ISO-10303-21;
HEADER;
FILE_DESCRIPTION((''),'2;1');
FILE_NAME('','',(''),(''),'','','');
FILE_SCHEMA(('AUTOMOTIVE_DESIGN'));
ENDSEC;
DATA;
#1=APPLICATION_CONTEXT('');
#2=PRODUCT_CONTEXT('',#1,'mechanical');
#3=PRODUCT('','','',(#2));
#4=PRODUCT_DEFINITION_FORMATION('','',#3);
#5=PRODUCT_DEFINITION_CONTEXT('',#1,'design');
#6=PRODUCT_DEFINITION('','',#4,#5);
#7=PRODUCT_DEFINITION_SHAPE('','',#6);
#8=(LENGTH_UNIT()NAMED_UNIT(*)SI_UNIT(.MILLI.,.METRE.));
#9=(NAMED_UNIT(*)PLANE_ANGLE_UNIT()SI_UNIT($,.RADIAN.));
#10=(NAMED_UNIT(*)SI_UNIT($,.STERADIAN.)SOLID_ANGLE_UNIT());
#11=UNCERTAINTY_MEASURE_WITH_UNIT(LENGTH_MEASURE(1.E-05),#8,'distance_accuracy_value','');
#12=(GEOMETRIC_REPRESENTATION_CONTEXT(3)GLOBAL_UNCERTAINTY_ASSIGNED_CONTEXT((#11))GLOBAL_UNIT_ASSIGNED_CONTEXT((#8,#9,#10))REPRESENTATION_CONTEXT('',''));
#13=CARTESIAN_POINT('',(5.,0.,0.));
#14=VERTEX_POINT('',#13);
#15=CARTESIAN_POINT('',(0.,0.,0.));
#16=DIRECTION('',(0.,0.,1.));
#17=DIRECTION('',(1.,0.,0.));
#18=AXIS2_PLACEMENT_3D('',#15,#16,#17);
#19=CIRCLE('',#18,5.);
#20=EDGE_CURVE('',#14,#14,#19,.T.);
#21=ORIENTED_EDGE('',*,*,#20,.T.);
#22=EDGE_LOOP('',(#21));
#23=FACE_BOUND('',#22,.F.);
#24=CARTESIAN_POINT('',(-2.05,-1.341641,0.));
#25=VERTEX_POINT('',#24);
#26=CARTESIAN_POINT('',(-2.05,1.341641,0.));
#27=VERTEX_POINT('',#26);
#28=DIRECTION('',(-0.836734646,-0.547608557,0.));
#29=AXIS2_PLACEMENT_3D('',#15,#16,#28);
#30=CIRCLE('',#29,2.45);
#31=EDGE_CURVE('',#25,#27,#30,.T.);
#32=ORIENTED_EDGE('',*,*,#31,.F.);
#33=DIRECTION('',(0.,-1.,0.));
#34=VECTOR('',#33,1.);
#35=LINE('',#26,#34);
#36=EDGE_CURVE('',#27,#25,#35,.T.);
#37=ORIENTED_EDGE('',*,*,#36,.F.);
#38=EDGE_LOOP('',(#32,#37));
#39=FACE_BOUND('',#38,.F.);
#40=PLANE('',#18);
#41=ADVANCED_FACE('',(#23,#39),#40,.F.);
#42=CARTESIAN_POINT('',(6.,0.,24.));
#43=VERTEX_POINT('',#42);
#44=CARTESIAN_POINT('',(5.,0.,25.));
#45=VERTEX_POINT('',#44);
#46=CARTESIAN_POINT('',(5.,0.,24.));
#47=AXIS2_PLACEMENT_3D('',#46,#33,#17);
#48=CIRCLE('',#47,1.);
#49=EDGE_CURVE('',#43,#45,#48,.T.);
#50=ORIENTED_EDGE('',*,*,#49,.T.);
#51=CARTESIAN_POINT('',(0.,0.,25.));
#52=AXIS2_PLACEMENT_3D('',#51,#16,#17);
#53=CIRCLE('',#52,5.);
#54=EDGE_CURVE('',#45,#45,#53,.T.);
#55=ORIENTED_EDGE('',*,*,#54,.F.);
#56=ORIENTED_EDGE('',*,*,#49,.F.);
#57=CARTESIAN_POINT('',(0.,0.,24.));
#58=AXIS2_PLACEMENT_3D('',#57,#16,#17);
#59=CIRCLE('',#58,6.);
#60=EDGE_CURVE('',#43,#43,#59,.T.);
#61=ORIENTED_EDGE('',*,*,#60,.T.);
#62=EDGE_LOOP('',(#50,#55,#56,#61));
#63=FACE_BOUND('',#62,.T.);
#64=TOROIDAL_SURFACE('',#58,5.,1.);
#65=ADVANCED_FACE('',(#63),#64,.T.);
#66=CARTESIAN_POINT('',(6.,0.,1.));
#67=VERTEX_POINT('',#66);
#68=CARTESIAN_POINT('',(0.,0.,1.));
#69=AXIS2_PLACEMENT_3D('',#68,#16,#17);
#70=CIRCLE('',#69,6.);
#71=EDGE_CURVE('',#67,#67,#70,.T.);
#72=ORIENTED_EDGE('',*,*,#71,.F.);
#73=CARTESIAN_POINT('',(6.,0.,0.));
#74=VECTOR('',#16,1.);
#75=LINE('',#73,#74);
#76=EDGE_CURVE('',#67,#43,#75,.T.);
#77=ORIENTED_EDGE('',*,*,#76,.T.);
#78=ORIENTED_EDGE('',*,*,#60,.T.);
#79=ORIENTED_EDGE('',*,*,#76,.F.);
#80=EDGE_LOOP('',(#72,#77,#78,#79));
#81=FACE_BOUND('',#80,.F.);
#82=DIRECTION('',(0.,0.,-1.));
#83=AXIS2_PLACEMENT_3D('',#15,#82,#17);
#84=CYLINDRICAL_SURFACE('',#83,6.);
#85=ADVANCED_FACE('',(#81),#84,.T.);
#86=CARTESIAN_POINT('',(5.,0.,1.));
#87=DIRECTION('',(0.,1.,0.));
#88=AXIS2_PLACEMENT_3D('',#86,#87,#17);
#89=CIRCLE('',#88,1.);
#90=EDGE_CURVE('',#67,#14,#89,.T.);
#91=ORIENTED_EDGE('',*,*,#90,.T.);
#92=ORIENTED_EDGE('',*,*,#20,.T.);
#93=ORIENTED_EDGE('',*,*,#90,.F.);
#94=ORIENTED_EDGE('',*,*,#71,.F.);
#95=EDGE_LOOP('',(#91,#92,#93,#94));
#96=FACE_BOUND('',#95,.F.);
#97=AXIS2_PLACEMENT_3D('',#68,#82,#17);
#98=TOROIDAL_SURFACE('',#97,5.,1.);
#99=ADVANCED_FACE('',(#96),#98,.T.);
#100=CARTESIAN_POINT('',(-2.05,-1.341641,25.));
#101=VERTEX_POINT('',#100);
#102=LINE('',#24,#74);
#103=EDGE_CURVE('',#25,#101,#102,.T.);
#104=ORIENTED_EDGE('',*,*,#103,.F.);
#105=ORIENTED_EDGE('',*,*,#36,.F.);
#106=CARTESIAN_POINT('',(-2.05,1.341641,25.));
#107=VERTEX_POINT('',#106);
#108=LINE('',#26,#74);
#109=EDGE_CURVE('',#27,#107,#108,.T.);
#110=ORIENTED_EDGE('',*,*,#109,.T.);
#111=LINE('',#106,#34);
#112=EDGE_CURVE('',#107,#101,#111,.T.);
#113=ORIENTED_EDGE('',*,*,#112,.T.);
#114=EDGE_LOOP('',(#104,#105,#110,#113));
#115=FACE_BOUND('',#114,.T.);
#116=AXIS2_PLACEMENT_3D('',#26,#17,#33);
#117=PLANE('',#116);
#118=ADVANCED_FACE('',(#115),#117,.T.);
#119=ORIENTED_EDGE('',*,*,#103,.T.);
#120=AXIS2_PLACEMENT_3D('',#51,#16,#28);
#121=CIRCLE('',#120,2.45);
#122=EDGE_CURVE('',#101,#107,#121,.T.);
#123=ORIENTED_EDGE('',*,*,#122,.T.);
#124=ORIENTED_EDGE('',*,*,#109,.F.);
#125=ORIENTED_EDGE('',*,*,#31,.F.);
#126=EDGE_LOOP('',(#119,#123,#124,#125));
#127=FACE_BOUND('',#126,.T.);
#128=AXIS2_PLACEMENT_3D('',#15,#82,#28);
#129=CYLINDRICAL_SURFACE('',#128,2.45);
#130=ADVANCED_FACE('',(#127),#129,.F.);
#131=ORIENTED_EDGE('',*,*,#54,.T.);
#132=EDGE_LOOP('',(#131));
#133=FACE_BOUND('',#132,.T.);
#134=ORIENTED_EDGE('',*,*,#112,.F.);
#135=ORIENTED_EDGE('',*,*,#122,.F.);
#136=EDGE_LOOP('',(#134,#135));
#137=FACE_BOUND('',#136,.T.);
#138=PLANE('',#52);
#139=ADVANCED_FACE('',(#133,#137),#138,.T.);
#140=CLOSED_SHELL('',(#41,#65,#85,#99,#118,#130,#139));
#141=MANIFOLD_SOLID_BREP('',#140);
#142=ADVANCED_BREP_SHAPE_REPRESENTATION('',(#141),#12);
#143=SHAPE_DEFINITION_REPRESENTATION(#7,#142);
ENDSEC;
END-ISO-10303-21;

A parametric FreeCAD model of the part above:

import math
import FreeCAD as App
import Part
import Sketcher
from FreeCAD import Vector
Q = App.Units.Quantity


def edges_at(feature, points):
    """Names of the edges that pass closest to the given points."""
    edges = feature.Shape.Edges
    near = lambda p: min(range(len(edges)), key=lambda i: edges[i].distToShape(Part.Vertex(*p))[0])
    return sorted({f"Edge{near(p) + 1}" for p in points})

doc = App.newDocument("Part")
params = doc.addObject("Spreadsheet::Sheet", "Params")
for row, (alias, value) in enumerate([
    ("sketch1_diameter", "12 mm"),
    ("pad1_length", "25 mm"),
    ("sketch2_radius", "2.45 mm"),
    ("pocket1_length", "25 mm"),
    ("fillet_radius", "1 mm"),
], start=1):
    params.set(f"A{row}", alias)
    params.set(f"B{row}", "=" + value)
    params.setAlias(f"B{row}", alias)

body = doc.addObject("PartDesign::Body", "Body")

# Sketch on XY plane
sketch1 = doc.addObject("Sketcher::SketchObject", "Sketch")
body.addObject(sketch1)
sketch1.AttachmentSupport = (doc.XY_Plane, [""])
sketch1.MapMode = "FlatFace"
sketch1.addGeometry(Part.Circle(Vector(0, 0, 0), Vector(0, 0, 1), 6), False)
sketch1.addConstraint([
    Sketcher.Constraint("Coincident", 0, 3, -1, 1),
    Sketcher.Constraint("Diameter", 0, Q("12 mm")),
])
sketch1.setExpression("Constraints[1]", "Params.sketch1_diameter")
pad1 = doc.addObject("PartDesign::Pad", "Pad")
body.addObject(pad1)
pad1.Profile = sketch1
pad1.setExpression("Length", "Params.pad1_length")

# Sketch on XY plane
sketch2 = doc.addObject("Sketcher::SketchObject", "Sketch001")
body.addObject(sketch2)
sketch2.AttachmentSupport = (doc.XY_Plane, [""])
sketch2.MapMode = "FlatFace"
sketch2.addGeometry([
    Part.LineSegment(Vector(-2, 1.3, 0), Vector(-2, -1.3, 0)),
    Part.ArcOfCircle(Part.Circle(Vector(0, 0, 0), Vector(0, 0, 1), 2.5), math.radians(-147), math.radians(147)),
], False)
sketch2.addConstraint([
    Sketcher.Constraint("Coincident", 0, 1, 1, 2),
    Sketcher.Constraint("Coincident", 1, 1, 0, 2),
    Sketcher.Constraint("Vertical", 0),
    Sketcher.Constraint("Coincident", 1, 3, -1, 1),
    Sketcher.Constraint("Radius", 1, Q("2.45 mm")),
    Sketcher.Constraint("DistanceX", 0, 1, -1, 1, Q("2.05 mm")),
])
sketch2.setExpression("Constraints[4]", "Params.sketch2_radius")
pocket1 = doc.addObject("PartDesign::Pocket", "Pocket")
body.addObject(pocket1)
pocket1.Profile = sketch2
pocket1.setExpression("Length", "Params.pocket1_length")
pocket1.Reversed = True
doc.recompute()

fillet = doc.addObject("PartDesign::Fillet", "Fillet")
body.addObject(fillet)
fillet.Base = (pocket1, edges_at(pocket1, [(-6, 0, 25), (-6, 0, 0)]))
fillet.setExpression("Radius", "Params.fillet_radius")

doc.recompute()
